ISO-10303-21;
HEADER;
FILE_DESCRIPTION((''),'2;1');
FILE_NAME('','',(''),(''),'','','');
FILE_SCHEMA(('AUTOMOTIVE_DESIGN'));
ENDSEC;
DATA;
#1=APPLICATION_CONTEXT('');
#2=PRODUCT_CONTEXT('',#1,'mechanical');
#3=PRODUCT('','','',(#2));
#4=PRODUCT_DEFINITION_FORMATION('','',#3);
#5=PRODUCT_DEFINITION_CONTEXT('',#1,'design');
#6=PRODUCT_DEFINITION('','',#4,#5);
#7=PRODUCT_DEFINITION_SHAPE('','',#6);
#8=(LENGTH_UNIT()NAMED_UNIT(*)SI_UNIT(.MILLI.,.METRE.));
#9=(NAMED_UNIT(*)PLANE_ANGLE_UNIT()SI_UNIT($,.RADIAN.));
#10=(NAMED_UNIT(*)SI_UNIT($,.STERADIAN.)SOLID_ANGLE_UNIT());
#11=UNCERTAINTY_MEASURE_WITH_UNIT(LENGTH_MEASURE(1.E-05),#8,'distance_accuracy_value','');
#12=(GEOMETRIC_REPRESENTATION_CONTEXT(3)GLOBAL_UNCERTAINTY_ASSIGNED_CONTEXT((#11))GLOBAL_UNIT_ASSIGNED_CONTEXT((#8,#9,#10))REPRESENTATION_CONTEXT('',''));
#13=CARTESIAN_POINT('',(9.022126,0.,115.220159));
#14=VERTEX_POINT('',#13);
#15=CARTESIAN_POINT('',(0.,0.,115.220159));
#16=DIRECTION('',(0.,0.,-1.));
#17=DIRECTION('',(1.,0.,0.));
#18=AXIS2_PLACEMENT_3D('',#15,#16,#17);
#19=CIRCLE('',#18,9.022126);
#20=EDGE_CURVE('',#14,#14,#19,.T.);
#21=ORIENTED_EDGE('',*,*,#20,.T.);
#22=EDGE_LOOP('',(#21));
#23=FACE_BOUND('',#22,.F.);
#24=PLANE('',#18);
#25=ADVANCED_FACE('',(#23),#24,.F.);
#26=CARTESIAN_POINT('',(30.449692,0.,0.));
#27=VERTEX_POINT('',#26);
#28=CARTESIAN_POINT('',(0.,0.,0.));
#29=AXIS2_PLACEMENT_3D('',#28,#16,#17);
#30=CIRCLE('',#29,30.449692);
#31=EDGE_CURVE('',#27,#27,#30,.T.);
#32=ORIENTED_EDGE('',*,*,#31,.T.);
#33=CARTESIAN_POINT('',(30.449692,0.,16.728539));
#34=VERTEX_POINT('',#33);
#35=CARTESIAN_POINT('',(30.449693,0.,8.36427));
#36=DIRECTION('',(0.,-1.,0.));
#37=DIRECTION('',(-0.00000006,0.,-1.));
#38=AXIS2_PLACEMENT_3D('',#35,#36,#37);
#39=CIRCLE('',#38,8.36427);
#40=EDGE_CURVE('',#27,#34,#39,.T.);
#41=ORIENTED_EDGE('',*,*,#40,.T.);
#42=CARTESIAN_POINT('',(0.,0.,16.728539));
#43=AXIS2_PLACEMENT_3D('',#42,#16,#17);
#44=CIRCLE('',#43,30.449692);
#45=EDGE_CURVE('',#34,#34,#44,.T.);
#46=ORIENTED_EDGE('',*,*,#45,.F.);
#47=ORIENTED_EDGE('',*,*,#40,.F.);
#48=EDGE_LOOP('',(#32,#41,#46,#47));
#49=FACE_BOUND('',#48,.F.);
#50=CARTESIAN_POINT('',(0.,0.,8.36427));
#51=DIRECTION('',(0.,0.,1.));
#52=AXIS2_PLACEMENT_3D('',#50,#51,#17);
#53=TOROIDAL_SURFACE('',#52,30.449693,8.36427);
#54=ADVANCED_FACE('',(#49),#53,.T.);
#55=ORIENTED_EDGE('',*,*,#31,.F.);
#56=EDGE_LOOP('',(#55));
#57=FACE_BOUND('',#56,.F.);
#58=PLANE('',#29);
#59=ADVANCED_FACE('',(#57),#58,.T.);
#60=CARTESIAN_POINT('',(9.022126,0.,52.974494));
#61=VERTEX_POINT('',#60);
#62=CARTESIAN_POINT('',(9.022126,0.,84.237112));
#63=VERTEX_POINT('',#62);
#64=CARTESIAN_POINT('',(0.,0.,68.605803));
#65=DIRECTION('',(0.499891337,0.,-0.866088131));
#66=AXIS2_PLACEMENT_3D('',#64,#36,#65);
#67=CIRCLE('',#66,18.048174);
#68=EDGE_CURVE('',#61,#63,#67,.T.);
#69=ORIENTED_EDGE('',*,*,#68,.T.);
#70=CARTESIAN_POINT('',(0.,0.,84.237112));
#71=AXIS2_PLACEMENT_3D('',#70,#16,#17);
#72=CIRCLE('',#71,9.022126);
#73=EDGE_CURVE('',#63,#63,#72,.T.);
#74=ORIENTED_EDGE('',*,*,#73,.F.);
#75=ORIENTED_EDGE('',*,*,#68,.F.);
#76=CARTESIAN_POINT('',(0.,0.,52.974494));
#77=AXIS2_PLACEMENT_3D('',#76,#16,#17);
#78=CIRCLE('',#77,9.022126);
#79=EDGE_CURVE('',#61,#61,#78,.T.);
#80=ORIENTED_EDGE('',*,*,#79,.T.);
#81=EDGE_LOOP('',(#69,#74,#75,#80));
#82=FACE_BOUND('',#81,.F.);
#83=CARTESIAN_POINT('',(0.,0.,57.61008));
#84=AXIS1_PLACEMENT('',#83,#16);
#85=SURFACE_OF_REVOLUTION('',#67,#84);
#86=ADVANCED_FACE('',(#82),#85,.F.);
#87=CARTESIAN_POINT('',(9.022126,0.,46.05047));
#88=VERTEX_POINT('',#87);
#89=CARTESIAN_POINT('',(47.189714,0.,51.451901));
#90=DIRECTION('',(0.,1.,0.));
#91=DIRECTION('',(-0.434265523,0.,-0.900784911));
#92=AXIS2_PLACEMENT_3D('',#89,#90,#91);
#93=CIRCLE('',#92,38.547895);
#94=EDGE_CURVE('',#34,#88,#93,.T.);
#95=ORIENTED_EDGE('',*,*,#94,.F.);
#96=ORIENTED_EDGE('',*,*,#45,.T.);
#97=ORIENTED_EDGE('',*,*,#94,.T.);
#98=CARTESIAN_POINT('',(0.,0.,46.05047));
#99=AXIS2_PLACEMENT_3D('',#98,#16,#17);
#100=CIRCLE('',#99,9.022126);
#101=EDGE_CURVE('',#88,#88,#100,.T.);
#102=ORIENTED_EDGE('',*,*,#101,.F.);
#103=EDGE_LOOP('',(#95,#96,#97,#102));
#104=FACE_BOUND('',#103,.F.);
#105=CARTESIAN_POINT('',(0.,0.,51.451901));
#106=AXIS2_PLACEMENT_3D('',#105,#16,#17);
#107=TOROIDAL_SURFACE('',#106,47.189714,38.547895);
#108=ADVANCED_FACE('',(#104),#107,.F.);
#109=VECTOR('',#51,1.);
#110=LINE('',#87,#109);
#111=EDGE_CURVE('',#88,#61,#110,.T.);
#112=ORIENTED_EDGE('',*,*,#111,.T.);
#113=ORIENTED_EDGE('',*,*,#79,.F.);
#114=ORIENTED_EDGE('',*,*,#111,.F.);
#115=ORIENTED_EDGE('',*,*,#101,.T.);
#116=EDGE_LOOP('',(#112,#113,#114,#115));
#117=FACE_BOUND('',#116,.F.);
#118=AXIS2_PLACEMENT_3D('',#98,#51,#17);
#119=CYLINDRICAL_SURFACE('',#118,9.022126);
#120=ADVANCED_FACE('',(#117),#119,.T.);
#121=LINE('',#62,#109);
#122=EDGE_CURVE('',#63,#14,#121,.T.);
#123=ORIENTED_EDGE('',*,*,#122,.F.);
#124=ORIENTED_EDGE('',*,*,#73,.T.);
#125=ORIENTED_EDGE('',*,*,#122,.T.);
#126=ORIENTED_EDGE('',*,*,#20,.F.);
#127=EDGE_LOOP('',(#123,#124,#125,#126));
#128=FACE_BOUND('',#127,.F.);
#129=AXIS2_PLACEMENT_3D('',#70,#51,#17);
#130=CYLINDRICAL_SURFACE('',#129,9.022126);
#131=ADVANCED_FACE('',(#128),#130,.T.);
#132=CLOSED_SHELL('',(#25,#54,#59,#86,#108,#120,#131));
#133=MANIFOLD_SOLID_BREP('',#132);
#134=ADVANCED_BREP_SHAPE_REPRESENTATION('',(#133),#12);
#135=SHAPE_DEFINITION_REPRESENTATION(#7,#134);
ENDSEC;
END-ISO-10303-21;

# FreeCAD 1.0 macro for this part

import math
import FreeCAD as App
import Part
import Sketcher
from FreeCAD import Vector

doc = App.newDocument("Part")
body = doc.addObject("PartDesign::Body", "Body")

# Sketch on XZ plane
sketch1 = body.newObject("Sketcher::SketchObject", "Sketch")
sketch1.AttachmentSupport = (doc.getObject("XZ_Plane"), [""])
sketch1.MapMode = "FlatFace"
sketch1.addGeometry(Part.LineSegment(Vector(0, 115, 0), Vector(0, 0, 0)), False)
sketch1.addGeometry(Part.LineSegment(Vector(0, 0, 0), Vector(30, 0, 0)), False)
sketch1.addGeometry(Part.ArcOfCircle(Part.Circle(Vector(30, 8, 0), Vector(0, 0, 1), 8), math.radians(-90), math.radians(90)), False)
sketch1.addGeometry(Part.ArcOfCircle(Part.Circle(Vector(47, 51, 0), Vector(0, 0, 1), 39), math.radians(-172), math.radians(-116)), False)
sketch1.addGeometry(Part.LineSegment(Vector(9, 46, 0), Vector(9, 53, 0)), False)
sketch1.addGeometry(Part.ArcOfCircle(Part.Circle(Vector(0, 69, 0), Vector(0, 0, 1), 18), math.radians(-60), math.radians(60)), False)
sketch1.addGeometry(Part.LineSegment(Vector(9, 84, 0), Vector(9, 115, 0)), False)
sketch1.addGeometry(Part.LineSegment(Vector(9, 115, 0), Vector(0, 115, 0)), False)
sketch1.addConstraint(Sketcher.Constraint("Coincident", 0, 2, 1, 1))
sketch1.addConstraint(Sketcher.Constraint("Tangent", 1, 2, 2, 1))
sketch1.addConstraint(Sketcher.Constraint("Coincident", 2, 2, 3, 2))
sketch1.addConstraint(Sketcher.Constraint("Coincident", 3, 1, 4, 1))
sketch1.addConstraint(Sketcher.Constraint("Coincident", 4, 2, 5, 1))
sketch1.addConstraint(Sketcher.Constraint("Coincident", 5, 2, 6, 1))
sketch1.addConstraint(Sketcher.Constraint("Coincident", 6, 2, 7, 1))
sketch1.addConstraint(Sketcher.Constraint("Coincident", 7, 2, 0, 1))
sketch1.addConstraint(Sketcher.Constraint("Vertical", 0))
sketch1.addConstraint(Sketcher.Constraint("Horizontal", 1))
sketch1.addConstraint(Sketcher.Constraint("Vertical", 4))
sketch1.addConstraint(Sketcher.Constraint("Vertical", 6))
sketch1.addConstraint(Sketcher.Constraint("Horizontal", 7))
sketch1.addConstraint(Sketcher.Constraint("Coincident", 0, 2, -1, 1))
sketch1.addConstraint(Sketcher.Constraint("PointOnObject", 5, 3, -2))
sketch1.addConstraint(Sketcher.Constraint("Vertical", 1, 2, 2, 2))
sketch1.addConstraint(Sketcher.Constraint("Vertical", 4, 2, 5, 2))
sketch1.addConstraint(Sketcher.Constraint("Radius", 2, 8.36427))
sketch1.addConstraint(Sketcher.Constraint("Radius", 3, 38.547895))
sketch1.addConstraint(Sketcher.Constraint("Radius", 5, 18.048174))
sketch1.addConstraint(Sketcher.Constraint("DistanceX", 1, 1, 1, 2, 30.449692))
sketch1.addConstraint(Sketcher.Constraint("DistanceY", 0, 2, 0, 1, 115.220159))
sketch1.addConstraint(Sketcher.Constraint("DistanceY", -1, 1, 3, 3, 51.451901))
sketch1.addConstraint(Sketcher.Constraint("DistanceY", 3, 3, 5, 3, 17.153902))
sketch1.addConstraint(Sketcher.Constraint("DistanceY", 2, 3, 3, 1, 37.686201))
revolution = body.newObject("PartDesign::Revolution", "Revolution")
revolution.Profile = sketch1
revolution.ReferenceAxis = (sketch1, ["V_Axis"])
revolution.Angle = 360

doc.recompute()
